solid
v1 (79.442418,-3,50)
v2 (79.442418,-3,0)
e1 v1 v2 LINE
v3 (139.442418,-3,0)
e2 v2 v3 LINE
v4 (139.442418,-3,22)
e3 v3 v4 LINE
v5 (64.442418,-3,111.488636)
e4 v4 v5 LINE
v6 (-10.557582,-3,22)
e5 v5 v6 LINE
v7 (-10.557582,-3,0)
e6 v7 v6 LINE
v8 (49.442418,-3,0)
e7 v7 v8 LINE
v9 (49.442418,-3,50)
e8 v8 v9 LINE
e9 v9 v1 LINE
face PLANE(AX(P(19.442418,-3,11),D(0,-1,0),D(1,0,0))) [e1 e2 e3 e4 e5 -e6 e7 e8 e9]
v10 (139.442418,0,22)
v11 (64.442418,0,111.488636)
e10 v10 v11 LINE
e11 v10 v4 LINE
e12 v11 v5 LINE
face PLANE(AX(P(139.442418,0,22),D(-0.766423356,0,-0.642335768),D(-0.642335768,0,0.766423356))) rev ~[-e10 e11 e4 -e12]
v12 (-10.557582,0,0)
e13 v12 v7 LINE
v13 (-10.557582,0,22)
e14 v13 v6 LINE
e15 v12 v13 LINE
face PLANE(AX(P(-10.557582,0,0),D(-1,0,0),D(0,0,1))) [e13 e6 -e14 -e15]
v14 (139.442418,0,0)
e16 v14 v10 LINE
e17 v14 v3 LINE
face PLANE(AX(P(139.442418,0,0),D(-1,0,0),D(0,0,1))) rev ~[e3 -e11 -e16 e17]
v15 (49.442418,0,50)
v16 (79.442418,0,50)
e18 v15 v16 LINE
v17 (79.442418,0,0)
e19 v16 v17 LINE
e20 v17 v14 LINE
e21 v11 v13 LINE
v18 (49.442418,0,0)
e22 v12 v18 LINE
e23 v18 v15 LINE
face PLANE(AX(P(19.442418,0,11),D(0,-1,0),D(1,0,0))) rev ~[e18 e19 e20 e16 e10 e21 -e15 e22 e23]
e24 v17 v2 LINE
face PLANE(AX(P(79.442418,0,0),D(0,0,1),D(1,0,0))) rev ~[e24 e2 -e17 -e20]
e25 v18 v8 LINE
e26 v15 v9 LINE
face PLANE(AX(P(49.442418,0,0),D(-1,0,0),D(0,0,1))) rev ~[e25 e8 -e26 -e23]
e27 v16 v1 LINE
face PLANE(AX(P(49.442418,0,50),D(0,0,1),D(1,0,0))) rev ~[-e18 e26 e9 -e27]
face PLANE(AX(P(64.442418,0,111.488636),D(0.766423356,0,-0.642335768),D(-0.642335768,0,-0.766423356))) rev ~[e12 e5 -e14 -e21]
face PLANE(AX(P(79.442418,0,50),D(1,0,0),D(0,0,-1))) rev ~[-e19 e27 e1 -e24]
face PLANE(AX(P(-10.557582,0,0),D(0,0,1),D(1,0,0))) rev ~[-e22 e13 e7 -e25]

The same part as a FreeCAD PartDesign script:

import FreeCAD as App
import Part
import Sketcher


def add_polygon(sketch, points):
    """Adds a closed chain of lines whose ends are joined by coincident constraints."""
    first, n = sketch.GeometryCount, len(points)
    for a, b in zip(points, points[1:] + points[:1]):
        sketch.addGeometry(Part.LineSegment(App.Vector(*a, 0), App.Vector(*b, 0)), False)
    for i in range(n):
        sketch.addConstraint(Sketcher.Constraint("Coincident", first + i, 2, first + (i + 1) % n, 1))

doc = App.newDocument("Part")
body = doc.addObject("PartDesign::Body", "Body")

sketch1 = doc.addObject("Sketcher::SketchObject", "Sketch")
body.addObject(sketch1)
sketch1.AttachmentSupport = (doc.XZ_Plane, [""])
sketch1.MapMode = "FlatFace"
add_polygon(sketch1, [(-10.557582, 22), (-10.557582, 0), (49.442418, 0), (49.442418, 50), (79.442418, 50), (79.442418, 0), (139.442418, 0), (139.442418, 22), (64.442418, 111.488636)])
sketch1.addConstraint([
    Sketcher.Constraint("Vertical", 0),
    Sketcher.Constraint("Horizontal", 1),
    Sketcher.Constraint("Vertical", 2),
    Sketcher.Constraint("Horizontal", 3),
    Sketcher.Constraint("Vertical", 4),
    Sketcher.Constraint("Horizontal", 5),
    Sketcher.Constraint("Vertical", 6),
    Sketcher.Constraint("PointOnObject", 0, 2, -1),
    Sketcher.Constraint("PointOnObject", 4, 2, -1),
    Sketcher.Constraint("Horizontal", 6, 2, 8, 2),
    Sketcher.Constraint("Equal", 1, 5),
    Sketcher.Constraint("Equal", 7, 8),
    Sketcher.Constraint("DistanceX", 1, 1, 1, 2, 60.0),
    Sketcher.Constraint("DistanceX", 3, 1, 3, 2, 30.0),
    Sketcher.Constraint("DistanceY", 0, 2, 0, 1, 22.0),
    Sketcher.Constraint("DistanceY", 2, 1, 2, 2, 50.0),
    Sketcher.Constraint("DistanceX", -1, 1, 1, 2, 49.442418),
    Sketcher.Constraint("Distance", 7, 116.761363),
])
pad1 = doc.addObject("PartDesign::Pad", "Pad")
body.addObject(pad1)
pad1.Profile = sketch1
pad1.Length = 3

doc.recompute()
